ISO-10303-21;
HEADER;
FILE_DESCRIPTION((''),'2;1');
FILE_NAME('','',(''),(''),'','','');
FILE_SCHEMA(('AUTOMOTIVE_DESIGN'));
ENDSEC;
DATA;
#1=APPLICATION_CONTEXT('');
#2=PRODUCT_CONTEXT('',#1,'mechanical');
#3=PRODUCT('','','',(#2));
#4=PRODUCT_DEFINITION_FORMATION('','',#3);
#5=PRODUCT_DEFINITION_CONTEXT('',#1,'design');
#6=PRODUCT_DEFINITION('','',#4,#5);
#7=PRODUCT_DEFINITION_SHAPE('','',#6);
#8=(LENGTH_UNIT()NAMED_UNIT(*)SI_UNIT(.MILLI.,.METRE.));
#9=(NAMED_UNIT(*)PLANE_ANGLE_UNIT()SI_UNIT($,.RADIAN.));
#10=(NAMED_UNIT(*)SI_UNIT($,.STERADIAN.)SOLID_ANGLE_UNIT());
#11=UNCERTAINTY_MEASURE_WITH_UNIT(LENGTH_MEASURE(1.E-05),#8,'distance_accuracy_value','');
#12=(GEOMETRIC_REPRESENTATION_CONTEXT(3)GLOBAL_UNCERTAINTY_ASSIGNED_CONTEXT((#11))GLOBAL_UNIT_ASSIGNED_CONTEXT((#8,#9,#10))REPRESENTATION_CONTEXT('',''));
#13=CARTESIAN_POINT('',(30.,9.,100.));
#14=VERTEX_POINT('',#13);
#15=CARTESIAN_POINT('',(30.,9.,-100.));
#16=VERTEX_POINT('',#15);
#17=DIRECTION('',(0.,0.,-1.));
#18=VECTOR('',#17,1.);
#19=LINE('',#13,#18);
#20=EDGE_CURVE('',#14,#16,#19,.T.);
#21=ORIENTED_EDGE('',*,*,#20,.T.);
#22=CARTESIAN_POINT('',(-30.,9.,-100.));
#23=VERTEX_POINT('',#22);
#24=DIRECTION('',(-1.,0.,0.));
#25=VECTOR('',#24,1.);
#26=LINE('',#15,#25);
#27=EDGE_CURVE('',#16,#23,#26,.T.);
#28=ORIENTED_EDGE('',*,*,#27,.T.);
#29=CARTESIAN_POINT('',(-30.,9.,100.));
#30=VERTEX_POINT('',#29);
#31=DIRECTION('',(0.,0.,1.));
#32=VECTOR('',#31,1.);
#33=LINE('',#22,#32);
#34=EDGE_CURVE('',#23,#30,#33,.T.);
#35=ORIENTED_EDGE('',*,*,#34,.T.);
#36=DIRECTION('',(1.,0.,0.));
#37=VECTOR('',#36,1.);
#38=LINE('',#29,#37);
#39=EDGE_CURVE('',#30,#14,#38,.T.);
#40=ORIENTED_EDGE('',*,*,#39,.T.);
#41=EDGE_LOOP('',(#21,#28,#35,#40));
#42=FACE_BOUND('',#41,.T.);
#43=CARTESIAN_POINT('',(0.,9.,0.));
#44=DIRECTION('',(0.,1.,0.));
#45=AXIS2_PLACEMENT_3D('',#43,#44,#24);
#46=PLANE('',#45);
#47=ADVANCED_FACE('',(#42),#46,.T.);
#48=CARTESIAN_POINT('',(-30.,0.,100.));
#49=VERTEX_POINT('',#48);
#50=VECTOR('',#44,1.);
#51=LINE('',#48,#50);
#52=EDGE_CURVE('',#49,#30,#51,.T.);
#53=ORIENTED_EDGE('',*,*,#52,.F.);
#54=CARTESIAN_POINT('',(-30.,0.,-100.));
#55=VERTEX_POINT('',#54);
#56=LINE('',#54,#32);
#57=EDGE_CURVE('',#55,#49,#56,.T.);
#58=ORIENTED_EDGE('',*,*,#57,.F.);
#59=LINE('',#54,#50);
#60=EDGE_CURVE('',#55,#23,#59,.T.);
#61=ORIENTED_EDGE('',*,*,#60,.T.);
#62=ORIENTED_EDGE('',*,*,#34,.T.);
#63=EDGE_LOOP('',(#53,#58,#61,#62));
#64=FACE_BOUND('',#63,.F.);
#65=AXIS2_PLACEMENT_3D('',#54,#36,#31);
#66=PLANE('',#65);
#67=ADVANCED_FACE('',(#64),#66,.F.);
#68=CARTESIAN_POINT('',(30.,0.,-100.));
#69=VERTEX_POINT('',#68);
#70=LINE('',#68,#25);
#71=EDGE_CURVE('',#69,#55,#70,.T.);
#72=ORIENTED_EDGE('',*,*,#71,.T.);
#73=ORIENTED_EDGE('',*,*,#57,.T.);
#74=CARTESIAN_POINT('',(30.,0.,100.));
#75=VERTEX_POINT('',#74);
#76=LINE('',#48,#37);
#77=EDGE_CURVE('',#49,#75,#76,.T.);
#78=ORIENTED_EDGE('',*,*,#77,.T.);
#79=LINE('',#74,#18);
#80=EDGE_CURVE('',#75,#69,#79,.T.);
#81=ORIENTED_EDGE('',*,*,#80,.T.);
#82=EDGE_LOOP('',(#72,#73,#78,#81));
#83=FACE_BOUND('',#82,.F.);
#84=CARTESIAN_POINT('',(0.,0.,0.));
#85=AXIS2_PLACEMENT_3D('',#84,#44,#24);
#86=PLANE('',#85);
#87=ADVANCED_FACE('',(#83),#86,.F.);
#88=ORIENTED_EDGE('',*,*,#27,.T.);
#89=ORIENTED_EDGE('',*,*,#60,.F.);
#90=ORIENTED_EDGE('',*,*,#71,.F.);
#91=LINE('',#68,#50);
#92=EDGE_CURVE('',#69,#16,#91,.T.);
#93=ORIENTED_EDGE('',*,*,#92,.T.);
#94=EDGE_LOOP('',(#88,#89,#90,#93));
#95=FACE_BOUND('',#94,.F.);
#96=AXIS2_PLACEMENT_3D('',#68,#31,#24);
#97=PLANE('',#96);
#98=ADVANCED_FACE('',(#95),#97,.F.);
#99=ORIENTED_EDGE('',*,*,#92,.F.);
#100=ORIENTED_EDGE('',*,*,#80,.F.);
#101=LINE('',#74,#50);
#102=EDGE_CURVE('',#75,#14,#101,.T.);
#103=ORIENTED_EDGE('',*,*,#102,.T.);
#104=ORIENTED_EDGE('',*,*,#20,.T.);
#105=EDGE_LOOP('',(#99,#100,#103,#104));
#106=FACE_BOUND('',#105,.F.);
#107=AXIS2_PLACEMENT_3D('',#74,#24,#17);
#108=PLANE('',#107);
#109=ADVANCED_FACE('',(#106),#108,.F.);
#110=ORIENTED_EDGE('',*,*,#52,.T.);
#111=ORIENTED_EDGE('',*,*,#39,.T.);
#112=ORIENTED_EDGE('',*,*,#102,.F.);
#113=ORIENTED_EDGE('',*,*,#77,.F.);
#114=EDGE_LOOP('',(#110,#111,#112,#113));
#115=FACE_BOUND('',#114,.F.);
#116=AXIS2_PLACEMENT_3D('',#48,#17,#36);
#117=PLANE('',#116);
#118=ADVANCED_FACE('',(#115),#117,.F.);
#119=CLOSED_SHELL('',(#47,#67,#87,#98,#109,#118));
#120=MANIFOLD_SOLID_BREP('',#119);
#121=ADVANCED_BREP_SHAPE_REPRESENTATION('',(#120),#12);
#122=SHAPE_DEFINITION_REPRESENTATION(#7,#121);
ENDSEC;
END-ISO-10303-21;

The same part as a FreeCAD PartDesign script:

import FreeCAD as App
import Part
import Sketcher
from FreeCAD import Vector

doc = App.newDocument("Part")
params = doc.addObject("Spreadsheet::Sheet", "Params")
for row, (alias, value) in enumerate([
    ("sketch1_width", "60 mm"),
    ("sketch1_height", "200 mm"),
    ("pad1_length", "9 mm"),
], start=1):
    params.set(f"A{row}", alias)
    params.set(f"B{row}", "=" + value)
    params.setAlias(f"B{row}", alias)

body = doc.addObject("PartDesign::Body", "Body")

# Sketch on XZ plane
sketch1 = doc.addObject("Sketcher::SketchObject", "Sketch")
body.addObject(sketch1)
sketch1.AttachmentSupport = (doc.XZ_Plane, [""])
sketch1.MapMode = "FlatFace"
sketch1.addGeometry([
    Part.LineSegment(Vector(-30, -100, 0), Vector(-30, 100, 0)),
    Part.LineSegment(Vector(-30, 100, 0), Vector(30, 100, 0)),
    Part.LineSegment(Vector(30, 100, 0), Vector(30, -100, 0)),
    Part.LineSegment(Vector(30, -100, 0), Vector(-30, -100, 0)),
], False)
sketch1.addConstraint([
    Sketcher.Constraint("Coincident", 0, 2, 1, 1),
    Sketcher.Constraint("Coincident", 1, 2, 2, 1),
    Sketcher.Constraint("Coincident", 2, 2, 3, 1),
    Sketcher.Constraint("Coincident", 3, 2, 0, 1),
    Sketcher.Constraint("Vertical", 0),
    Sketcher.Constraint("Horizontal", 1),
    Sketcher.Constraint("Vertical", 2),
    Sketcher.Constraint("Horizontal", 3),
    Sketcher.Constraint("Symmetric", 0, 2, 2, 2, -1, 1),
    Sketcher.Constraint("DistanceX", 1, 1, 1, 2, 60.0),
    Sketcher.Constraint("DistanceY", 0, 1, 0, 2, 200.0),
])
sketch1.setExpression("Constraints[9]", "Params.sketch1_width")
sketch1.setExpression("Constraints[10]", "Params.sketch1_height")
pad1 = doc.addObject("PartDesign::Pad", "Pad")
body.addObject(pad1)
pad1.Profile = sketch1
pad1.setExpression("Length", "Params.pad1_length")
pad1.Reversed = True

doc.recompute()
